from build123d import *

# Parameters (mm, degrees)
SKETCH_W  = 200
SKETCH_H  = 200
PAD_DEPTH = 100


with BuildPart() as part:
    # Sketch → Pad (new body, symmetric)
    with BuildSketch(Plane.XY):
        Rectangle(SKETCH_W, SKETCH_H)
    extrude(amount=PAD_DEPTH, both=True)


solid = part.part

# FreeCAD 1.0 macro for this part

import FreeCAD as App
import Part
import Sketcher
from FreeCAD import Vector

doc = App.newDocument("Part")
body = doc.addObject("PartDesign::Body", "Body")

sketch1 = doc.addObject("Sketcher::SketchObject", "Sketch")
body.addObject(sketch1)
sketch1.AttachmentSupport = (doc.XY_Plane, [""])
sketch1.MapMode = "FlatFace"
sketch1.addGeometry([
    Part.LineSegment(Vector(-100, 100, 0), Vector(-100, -100, 0)),
    Part.LineSegment(Vector(-100, -100, 0), Vector(100, -100, 0)),
    Part.LineSegment(Vector(100, -100, 0), Vector(100, 100, 0)),
    Part.LineSegment(Vector(100, 100, 0), Vector(-100, 100, 0)),
], False)
sketch1.addConstraint([
    Sketcher.Constraint("Coincident", 0, 2, 1, 1),
    Sketcher.Constraint("Coincident", 1, 2, 2, 1),
    Sketcher.Constraint("Coincident", 2, 2, 3, 1),
    Sketcher.Constraint("Coincident", 3, 2, 0, 1),
    Sketcher.Constraint("Vertical", 0),
    Sketcher.Constraint("Horizontal", 1),
    Sketcher.Constraint("Vertical", 2),
    Sketcher.Constraint("Horizontal", 3),
    Sketcher.Constraint("Symmetric", 0, 2, 2, 2, -1, 1),
    Sketcher.Constraint("Equal", 3, 0),
    Sketcher.Constraint("DistanceX", 1, 1, 1, 2, 200.0),
])
pad1 = doc.addObject("PartDesign::Pad", "Pad")
body.addObject(pad1)
pad1.Profile = sketch1
pad1.Length = 200
pad1.Midplane = True

doc.recompute()
